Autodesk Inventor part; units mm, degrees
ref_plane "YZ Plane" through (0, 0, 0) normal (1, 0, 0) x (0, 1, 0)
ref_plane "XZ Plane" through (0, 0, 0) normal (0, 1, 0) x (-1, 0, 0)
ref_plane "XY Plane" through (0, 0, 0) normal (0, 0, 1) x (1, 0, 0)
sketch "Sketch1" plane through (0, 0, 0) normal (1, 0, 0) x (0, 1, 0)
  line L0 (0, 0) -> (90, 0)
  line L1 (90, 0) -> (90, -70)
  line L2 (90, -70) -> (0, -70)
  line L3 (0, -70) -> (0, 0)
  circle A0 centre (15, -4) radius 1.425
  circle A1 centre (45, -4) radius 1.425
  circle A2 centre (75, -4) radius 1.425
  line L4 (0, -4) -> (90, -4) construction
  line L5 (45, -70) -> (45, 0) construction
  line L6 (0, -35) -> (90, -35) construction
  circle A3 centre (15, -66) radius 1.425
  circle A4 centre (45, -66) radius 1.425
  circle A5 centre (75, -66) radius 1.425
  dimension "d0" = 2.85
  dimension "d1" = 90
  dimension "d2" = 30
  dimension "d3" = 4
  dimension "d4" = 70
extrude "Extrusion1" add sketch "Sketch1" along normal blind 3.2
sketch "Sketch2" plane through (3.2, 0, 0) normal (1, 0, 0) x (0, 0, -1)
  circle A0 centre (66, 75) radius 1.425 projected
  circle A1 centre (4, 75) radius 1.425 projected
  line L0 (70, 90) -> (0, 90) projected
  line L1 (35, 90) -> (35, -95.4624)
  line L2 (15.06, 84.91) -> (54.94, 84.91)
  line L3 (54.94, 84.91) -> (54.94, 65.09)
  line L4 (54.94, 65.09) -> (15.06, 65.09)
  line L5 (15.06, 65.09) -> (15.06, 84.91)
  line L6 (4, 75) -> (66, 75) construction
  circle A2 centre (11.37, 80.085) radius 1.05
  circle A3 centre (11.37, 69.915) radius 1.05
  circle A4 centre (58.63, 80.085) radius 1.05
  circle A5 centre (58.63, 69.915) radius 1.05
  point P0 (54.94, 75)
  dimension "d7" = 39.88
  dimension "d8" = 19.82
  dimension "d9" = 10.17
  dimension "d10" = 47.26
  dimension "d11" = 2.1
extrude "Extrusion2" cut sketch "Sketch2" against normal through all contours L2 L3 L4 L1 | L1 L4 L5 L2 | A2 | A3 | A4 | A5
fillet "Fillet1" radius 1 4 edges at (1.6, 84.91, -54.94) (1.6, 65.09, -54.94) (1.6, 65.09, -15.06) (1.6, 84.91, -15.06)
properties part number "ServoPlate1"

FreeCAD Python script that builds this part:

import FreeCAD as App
import Part
import Sketcher
Q = App.Units.Quantity


def edges_at(feature, points):
    """Names of the edges that pass closest to the given points."""
    edges = feature.Shape.Edges
    near = lambda p: min(range(len(edges)), key=lambda i: edges[i].distToShape(Part.Vertex(*p))[0])
    return sorted({f"Edge{near(p) + 1}" for p in points})


def add_polygon(sketch, points):
    """Adds a closed chain of lines whose ends are joined by coincident constraints."""
    first, n = sketch.GeometryCount, len(points)
    for a, b in zip(points, points[1:] + points[:1]):
        sketch.addGeometry(Part.LineSegment(App.Vector(*a, 0), App.Vector(*b, 0)), False)
    for i in range(n):
        sketch.addConstraint(Sketcher.Constraint("Coincident", first + i, 2, first + (i + 1) % n, 1))

doc = App.newDocument("Part")
body = doc.addObject("PartDesign::Body", "Body")

# Sketch on YZ plane
sketch1 = doc.addObject("Sketcher::SketchObject", "Sketch")
body.addObject(sketch1)
sketch1.AttachmentSupport = (doc.YZ_Plane, [""])
sketch1.MapMode = "FlatFace"
add_polygon(sketch1, [(90, 0), (0, 0), (0, -70), (90, -70)])  # lines 0-3
sketch1.addGeometry(Part.Circle(App.Vector(15, -66, 0), App.Vector(0, 0, 1), 1.4), False)  # 4
sketch1.addGeometry(Part.Circle(App.Vector(45, -66, 0), App.Vector(0, 0, 1), 1.4), False)  # 5
sketch1.addGeometry(Part.Circle(App.Vector(75, -66, 0), App.Vector(0, 0, 1), 1.4), False)  # 6
sketch1.addGeometry(Part.Circle(App.Vector(15, -4, 0), App.Vector(0, 0, 1), 1.4), False)  # 7
sketch1.addGeometry(Part.Circle(App.Vector(45, -4, 0), App.Vector(0, 0, 1), 1.4), False)  # 8
sketch1.addGeometry(Part.Circle(App.Vector(75, -4, 0), App.Vector(0, 0, 1), 1.4), False)  # 9
sketch1.addConstraint([
    Sketcher.Constraint("Horizontal", 0),
    Sketcher.Constraint("Vertical", 1),
    Sketcher.Constraint("Horizontal", 2),
    Sketcher.Constraint("Vertical", 3),
    Sketcher.Constraint("Coincident", 0, 2, -1, 1),
    Sketcher.Constraint("Equal", 4, 5),
    Sketcher.Constraint("Equal", 5, 6),
    Sketcher.Constraint("Equal", 6, 7),
    Sketcher.Constraint("Equal", 7, 8),
    Sketcher.Constraint("Equal", 8, 9),
    Sketcher.Constraint("Horizontal", 4, 3, 5, 3),
    Sketcher.Constraint("Horizontal", 5, 3, 6, 3),
    Sketcher.Constraint("Horizontal", 7, 3, 8, 3),
    Sketcher.Constraint("Horizontal", 8, 3, 9, 3),
    Sketcher.Constraint("Vertical", 4, 3, 7, 3),
    Sketcher.Constraint("Vertical", 5, 3, 8, 3),
    Sketcher.Constraint("Vertical", 6, 3, 9, 3),
    Sketcher.Constraint("Diameter", 4, Q("2.85 mm")),
    Sketcher.Constraint("DistanceX", 0, 2, 0, 1, Q("90 mm")),
    Sketcher.Constraint("DistanceY", 1, 2, 1, 1, Q("70 mm")),
    Sketcher.Constraint("DistanceY", 7, 3, -1, 1, Q("4 mm")),
    Sketcher.Constraint("DistanceX", 4, 3, 5, 3, Q("30 mm")),
    Sketcher.Constraint("DistanceX", 5, 3, 6, 3, Q("30 mm")),
    Sketcher.Constraint("DistanceY", 1, 2, 4, 3, Q("4 mm")),
    Sketcher.Constraint("DistanceX", -1, 1, 4, 3, Q("15 mm")),
])
pad1 = doc.addObject("PartDesign::Pad", "Pad")
body.addObject(pad1)
pad1.Profile = sketch1
pad1.Length = 3.2

# Sketch on YZ plane
sketch2 = doc.addObject("Sketcher::SketchObject", "Sketch001")
body.addObject(sketch2)
sketch2.AttachmentSupport = (doc.YZ_Plane, [""])
sketch2.MapMode = "FlatFace"
sketch2.AttachmentOffset = App.Placement(App.Vector(0, 0, 3.2), App.Rotation())
add_polygon(sketch2, [(84.9, -54.9), (84.9, -15.1), (65.1, -15.1), (65.1, -54.9)])  # lines 0-3
sketch2.addGeometry(Part.Circle(App.Vector(80.1, -11.4, 0), App.Vector(0, 0, 1), 1.1), False)  # 4
sketch2.addGeometry(Part.Circle(App.Vector(69.9, -11.4, 0), App.Vector(0, 0, 1), 1.1), False)  # 5
sketch2.addGeometry(Part.Circle(App.Vector(80.1, -58.6, 0), App.Vector(0, 0, 1), 1.1), False)  # 6
sketch2.addGeometry(Part.Circle(App.Vector(69.9, -58.6, 0), App.Vector(0, 0, 1), 1.1), False)  # 7
sketch2.addConstraint([
    Sketcher.Constraint("Vertical", 0),
    Sketcher.Constraint("Horizontal", 1),
    Sketcher.Constraint("Vertical", 2),
    Sketcher.Constraint("Horizontal", 3),
    Sketcher.Constraint("Equal", 4, 5),
    Sketcher.Constraint("Equal", 5, 6),
    Sketcher.Constraint("Equal", 6, 7),
    Sketcher.Constraint("Horizontal", 4, 3, 5, 3),
    Sketcher.Constraint("Horizontal", 6, 3, 7, 3),
    Sketcher.Constraint("Vertical", 4, 3, 6, 3),
    Sketcher.Constraint("Vertical", 5, 3, 7, 3),
    Sketcher.Constraint("Diameter", 4, Q("2.1 mm")),
    Sketcher.Constraint("DistanceX", 1, 2, 1, 1, Q("19.82 mm")),
    Sketcher.Constraint("DistanceY", 0, 1, 0, 2, Q("39.88 mm")),
    Sketcher.Constraint("DistanceX", 5, 3, 4, 3, Q("10.17 mm")),
    Sketcher.Constraint("DistanceY", 6, 3, 4, 3, Q("47.26 mm")),
    Sketcher.Constraint("DistanceY", 4, 3, -1, 1, Q("11.37 mm")),
    Sketcher.Constraint("DistanceX", -1, 1, 0, 2, Q("84.91 mm")),
    Sketcher.Constraint("DistanceY", 0, 2, -1, 1, Q("15.06 mm")),
    Sketcher.Constraint("DistanceX", -1, 1, 4, 3, Q("80.085 mm")),
])
pocket1 = doc.addObject("PartDesign::Pocket", "Pocket")
body.addObject(pocket1)
pocket1.Profile = sketch2
pocket1.Type = "ThroughAll"
doc.recompute()

fillet = doc.addObject("PartDesign::Fillet", "Fillet")
body.addObject(fillet)
fillet.Base = (pocket1, edges_at(pocket1, [
    (1.6, 84.91, -54.94),
    (1.6, 65.09, -54.94),
    (1.6, 65.09, -15.06),
    (1.6, 84.91, -15.06),
]))
fillet.Radius = 1

doc.recompute()
